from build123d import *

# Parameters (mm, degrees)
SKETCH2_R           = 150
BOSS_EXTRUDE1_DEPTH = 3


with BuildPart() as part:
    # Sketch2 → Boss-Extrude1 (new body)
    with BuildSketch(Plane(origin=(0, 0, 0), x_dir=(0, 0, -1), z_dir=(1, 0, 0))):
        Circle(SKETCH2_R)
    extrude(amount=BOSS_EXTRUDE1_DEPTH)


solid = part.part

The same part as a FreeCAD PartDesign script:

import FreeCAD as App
import Part
import Sketcher
from FreeCAD import Vector

doc = App.newDocument("Part")
body = doc.addObject("PartDesign::Body", "Body")

# Sketch on YZ plane
sketch1 = doc.addObject("Sketcher::SketchObject", "Sketch")
body.addObject(sketch1)
sketch1.AttachmentSupport = (doc.YZ_Plane, [""])
sketch1.MapMode = "FlatFace"
sketch1.addGeometry(Part.Circle(Vector(0, 0, 0), Vector(0, 0, 1), 150), False)
sketch1.addConstraint([
    Sketcher.Constraint("Coincident", 0, 3, -1, 1),
    Sketcher.Constraint("Diameter", 0, 300.0),
])
pad1 = doc.addObject("PartDesign::Pad", "Pad")
body.addObject(pad1)
pad1.Profile = sketch1
pad1.Length = 3

doc.recompute()
